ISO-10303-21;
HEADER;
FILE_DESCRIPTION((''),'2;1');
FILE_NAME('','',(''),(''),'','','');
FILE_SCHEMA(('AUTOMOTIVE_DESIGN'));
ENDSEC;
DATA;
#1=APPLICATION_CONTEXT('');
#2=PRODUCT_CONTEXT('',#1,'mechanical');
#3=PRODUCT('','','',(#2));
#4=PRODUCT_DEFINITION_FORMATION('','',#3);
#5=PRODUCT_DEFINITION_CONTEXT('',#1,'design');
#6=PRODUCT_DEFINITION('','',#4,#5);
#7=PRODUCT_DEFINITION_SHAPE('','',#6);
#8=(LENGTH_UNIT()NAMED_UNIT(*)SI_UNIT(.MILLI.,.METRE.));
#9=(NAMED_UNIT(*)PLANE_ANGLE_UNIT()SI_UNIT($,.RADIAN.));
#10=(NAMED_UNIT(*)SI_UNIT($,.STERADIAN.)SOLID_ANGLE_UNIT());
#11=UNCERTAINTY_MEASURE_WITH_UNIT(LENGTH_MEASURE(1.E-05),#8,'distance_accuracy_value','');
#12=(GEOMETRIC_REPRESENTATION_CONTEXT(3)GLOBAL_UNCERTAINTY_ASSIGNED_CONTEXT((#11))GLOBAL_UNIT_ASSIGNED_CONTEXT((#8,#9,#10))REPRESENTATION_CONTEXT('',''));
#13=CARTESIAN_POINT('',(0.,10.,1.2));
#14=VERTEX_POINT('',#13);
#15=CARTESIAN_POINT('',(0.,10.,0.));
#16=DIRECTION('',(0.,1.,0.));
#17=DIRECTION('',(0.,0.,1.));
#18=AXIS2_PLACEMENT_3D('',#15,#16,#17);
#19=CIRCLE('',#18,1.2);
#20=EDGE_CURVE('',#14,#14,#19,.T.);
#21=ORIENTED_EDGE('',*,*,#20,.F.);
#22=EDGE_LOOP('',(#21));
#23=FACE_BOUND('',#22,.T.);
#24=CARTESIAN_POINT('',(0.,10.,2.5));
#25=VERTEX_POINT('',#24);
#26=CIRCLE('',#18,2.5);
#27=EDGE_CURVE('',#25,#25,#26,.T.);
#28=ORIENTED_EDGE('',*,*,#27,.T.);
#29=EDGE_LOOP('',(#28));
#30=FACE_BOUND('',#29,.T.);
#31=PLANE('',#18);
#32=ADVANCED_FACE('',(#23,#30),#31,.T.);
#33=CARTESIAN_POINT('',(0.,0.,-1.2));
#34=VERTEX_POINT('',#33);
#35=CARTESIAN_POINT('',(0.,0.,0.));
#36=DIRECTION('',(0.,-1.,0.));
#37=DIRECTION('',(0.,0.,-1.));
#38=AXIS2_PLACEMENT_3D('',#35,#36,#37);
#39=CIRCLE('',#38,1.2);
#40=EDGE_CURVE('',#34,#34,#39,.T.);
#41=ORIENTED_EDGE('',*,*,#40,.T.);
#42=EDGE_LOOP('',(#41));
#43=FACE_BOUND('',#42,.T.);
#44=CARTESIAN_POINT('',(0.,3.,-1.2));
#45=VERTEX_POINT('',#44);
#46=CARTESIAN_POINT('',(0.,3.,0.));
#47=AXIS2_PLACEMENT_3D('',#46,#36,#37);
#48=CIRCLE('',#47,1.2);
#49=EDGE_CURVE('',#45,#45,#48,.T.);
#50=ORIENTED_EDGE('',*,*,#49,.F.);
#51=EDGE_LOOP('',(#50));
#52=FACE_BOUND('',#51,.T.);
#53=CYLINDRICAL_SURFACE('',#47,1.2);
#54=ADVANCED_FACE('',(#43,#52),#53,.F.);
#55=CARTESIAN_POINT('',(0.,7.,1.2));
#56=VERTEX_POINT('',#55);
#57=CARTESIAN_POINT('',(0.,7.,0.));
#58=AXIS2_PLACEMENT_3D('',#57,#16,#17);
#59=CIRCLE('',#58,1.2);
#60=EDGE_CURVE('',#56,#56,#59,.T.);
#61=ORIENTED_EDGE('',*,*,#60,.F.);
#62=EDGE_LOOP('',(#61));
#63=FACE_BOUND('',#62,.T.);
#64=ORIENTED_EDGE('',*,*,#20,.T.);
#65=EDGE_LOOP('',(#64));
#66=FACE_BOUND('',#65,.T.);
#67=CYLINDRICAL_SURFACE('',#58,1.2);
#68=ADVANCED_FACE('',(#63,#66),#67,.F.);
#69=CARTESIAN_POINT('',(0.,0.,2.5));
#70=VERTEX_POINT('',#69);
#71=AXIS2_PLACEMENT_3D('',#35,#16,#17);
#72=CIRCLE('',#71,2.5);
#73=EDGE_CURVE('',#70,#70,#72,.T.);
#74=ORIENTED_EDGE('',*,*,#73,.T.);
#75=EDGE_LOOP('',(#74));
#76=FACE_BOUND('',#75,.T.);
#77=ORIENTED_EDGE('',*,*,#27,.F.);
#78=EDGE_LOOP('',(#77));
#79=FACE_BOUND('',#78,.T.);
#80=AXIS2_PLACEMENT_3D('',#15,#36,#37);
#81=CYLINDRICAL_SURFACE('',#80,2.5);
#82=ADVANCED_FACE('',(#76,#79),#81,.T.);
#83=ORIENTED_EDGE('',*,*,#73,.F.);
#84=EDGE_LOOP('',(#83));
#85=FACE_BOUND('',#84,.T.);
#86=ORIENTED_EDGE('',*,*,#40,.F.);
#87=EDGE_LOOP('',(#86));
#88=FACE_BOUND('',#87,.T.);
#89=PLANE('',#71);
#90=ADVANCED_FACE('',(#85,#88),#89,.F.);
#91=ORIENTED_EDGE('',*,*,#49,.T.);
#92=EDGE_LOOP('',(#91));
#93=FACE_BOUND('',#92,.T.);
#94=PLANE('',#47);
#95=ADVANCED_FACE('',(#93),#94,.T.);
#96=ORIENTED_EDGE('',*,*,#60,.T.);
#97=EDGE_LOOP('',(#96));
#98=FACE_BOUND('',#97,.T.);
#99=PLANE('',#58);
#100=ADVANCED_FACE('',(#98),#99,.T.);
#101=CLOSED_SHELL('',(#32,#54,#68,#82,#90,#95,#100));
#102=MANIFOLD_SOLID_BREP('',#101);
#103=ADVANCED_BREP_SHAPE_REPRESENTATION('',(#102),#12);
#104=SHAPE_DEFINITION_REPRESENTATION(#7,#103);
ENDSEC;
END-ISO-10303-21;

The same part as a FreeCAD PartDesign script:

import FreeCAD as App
import Part
import Sketcher

doc = App.newDocument("Part")
params = doc.addObject("Spreadsheet::Sheet", "Params")
for row, (alias, value) in enumerate([
    ("sketch1_diameter", "5 mm"),
    ("pad1_length", "10 mm"),
    ("sketch2_diameter", "2.4 mm"),
    ("pocket1_length", "3 mm"),
    ("sketch3_diameter", "2.4 mm"),
    ("pocket2_length", "3 mm"),
], start=1):
    params.set(f"A{row}", alias)
    params.set(f"B{row}", "=" + value)
    params.setAlias(f"B{row}", alias)

body = doc.addObject("PartDesign::Body", "Body")

sketch1 = body.newObject("Sketcher::SketchObject", "Sketch")
sketch1.AttachmentSupport = (doc.getObject("XZ_Plane"), [""])
sketch1.MapMode = "FlatFace"
sketch1.addGeometry(Part.Circle(App.Vector(0, 0, 0), App.Vector(0, 0, 1), 2.5), False)
sketch1.addConstraint([
    Sketcher.Constraint("Coincident", 0, 3, -1, 1),
    Sketcher.Constraint("Diameter", 0, 5.0),
])
sketch1.setExpression("Constraints[1]", "Params.sketch1_diameter")
pad1 = body.newObject("PartDesign::Pad", "Pad")
pad1.Profile = sketch1
pad1.setExpression("Length", "Params.pad1_length")
pad1.Reversed = True

sketch2 = body.newObject("Sketcher::SketchObject", "Sketch001")
sketch2.AttachmentSupport = (doc.getObject("XZ_Plane"), [""])
sketch2.MapMode = "FlatFace"
sketch2.AttachmentOffset = App.Placement(App.Vector(0, 0, -10), App.Rotation())
sketch2.addGeometry(Part.Circle(App.Vector(0, 0, 0), App.Vector(0, 0, 1), 1.2), False)
sketch2.addConstraint([
    Sketcher.Constraint("Coincident", 0, 3, -1, 1),
    Sketcher.Constraint("Diameter", 0, 2.4),
])
sketch2.setExpression("Constraints[1]", "Params.sketch2_diameter")
pocket1 = body.newObject("PartDesign::Pocket", "Pocket")
pocket1.Profile = sketch2
pocket1.setExpression("Length", "Params.pocket1_length")
pocket1.Reversed = True

sketch3 = body.newObject("Sketcher::SketchObject", "Sketch002")
sketch3.AttachmentSupport = (doc.getObject("XZ_Plane"), [""])
sketch3.MapMode = "FlatFace"
sketch3.addGeometry(Part.Circle(App.Vector(0, 0, 0), App.Vector(0, 0, 1), 1.2), False)
sketch3.addConstraint([
    Sketcher.Constraint("Coincident", 0, 3, -1, 1),
    Sketcher.Constraint("Diameter", 0, 2.4),
])
sketch3.setExpression("Constraints[1]", "Params.sketch3_diameter")
pocket2 = body.newObject("PartDesign::Pocket", "Pocket001")
pocket2.Profile = sketch3
pocket2.setExpression("Length", "Params.pocket2_length")

doc.recompute()
